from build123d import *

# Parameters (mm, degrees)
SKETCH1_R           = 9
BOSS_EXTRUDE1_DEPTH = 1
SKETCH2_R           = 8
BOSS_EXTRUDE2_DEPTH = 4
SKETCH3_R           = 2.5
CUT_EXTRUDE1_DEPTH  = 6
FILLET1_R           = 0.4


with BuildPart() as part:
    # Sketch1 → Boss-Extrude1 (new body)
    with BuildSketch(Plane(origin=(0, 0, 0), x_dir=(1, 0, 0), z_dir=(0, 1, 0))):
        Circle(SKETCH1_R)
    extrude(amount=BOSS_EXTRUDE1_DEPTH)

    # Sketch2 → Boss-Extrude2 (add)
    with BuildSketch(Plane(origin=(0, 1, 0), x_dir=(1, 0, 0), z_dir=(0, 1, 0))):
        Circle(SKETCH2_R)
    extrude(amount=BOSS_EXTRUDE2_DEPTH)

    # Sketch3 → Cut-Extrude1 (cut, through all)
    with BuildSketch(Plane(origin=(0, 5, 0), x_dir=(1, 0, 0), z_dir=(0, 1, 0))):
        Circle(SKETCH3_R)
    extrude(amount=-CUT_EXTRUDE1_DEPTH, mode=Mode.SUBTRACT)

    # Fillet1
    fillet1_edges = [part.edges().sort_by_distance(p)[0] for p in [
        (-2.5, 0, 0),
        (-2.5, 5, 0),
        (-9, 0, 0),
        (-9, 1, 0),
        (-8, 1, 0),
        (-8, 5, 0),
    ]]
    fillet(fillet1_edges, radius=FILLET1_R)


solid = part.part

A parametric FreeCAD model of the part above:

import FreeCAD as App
import Part
import Sketcher
from FreeCAD import Vector
Q = App.Units.Quantity


def edges_at(feature, points):
    """Names of the edges that pass closest to the given points."""
    edges = feature.Shape.Edges
    near = lambda p: min(range(len(edges)), key=lambda i: edges[i].distToShape(Part.Vertex(*p))[0])
    return sorted({f"Edge{near(p) + 1}" for p in points})

doc = App.newDocument("Part")
body = doc.addObject("PartDesign::Body", "Body")

sketch1 = body.newObject("Sketcher::SketchObject", "Sketch")
sketch1.AttachmentSupport = (doc.getObject("XZ_Plane"), [""])
sketch1.MapMode = "FlatFace"
sketch1.addGeometry(Part.Circle(Vector(0, 0, 0), Vector(0, 0, 1), 9), False)
sketch1.addConstraint(Sketcher.Constraint("Coincident", 0, 3, -1, 1))
sketch1.addConstraint(Sketcher.Constraint("Diameter", 0, Q("18 mm")))
pad1 = body.newObject("PartDesign::Pad", "Pad")
pad1.Profile = sketch1
pad1.Length = 1
pad1.Reversed = True

sketch2 = body.newObject("Sketcher::SketchObject", "Sketch001")
sketch2.AttachmentSupport = (doc.getObject("XZ_Plane"), [""])
sketch2.MapMode = "FlatFace"
sketch2.AttachmentOffset = App.Placement(Vector(0, 0, -1), App.Rotation())
sketch2.addGeometry(Part.Circle(Vector(0, 0, 0), Vector(0, 0, 1), 8), False)
sketch2.addConstraint(Sketcher.Constraint("Coincident", 0, 3, -1, 1))
sketch2.addConstraint(Sketcher.Constraint("Diameter", 0, Q("16 mm")))
pad2 = body.newObject("PartDesign::Pad", "Pad001")
pad2.Profile = sketch2
pad2.Length = 4
pad2.Reversed = True

sketch3 = body.newObject("Sketcher::SketchObject", "Sketch002")
sketch3.AttachmentSupport = (doc.getObject("XZ_Plane"), [""])
sketch3.MapMode = "FlatFace"
sketch3.AttachmentOffset = App.Placement(Vector(0, 0, -5), App.Rotation())
sketch3.addGeometry(Part.Circle(Vector(0, 0, 0), Vector(0, 0, 1), 2.5), False)
sketch3.addConstraint(Sketcher.Constraint("Coincident", 0, 3, -1, 1))
sketch3.addConstraint(Sketcher.Constraint("Diameter", 0, Q("5 mm")))
pocket1 = body.newObject("PartDesign::Pocket", "Pocket")
pocket1.Profile = sketch3
pocket1.Type = "ThroughAll"
pocket1.Reversed = True
doc.recompute()

fillet = body.newObject("PartDesign::Fillet", "Fillet")
fillet.Base = (pocket1, edges_at(pocket1, [
    (-2.5, 0, 0),
    (-2.5, 5, 0),
    (-9, 0, 0),
    (-9, 1, 0),
    (-8, 1, 0),
    (-8, 5, 0),
]))
fillet.Radius = 0.4

doc.recompute()
